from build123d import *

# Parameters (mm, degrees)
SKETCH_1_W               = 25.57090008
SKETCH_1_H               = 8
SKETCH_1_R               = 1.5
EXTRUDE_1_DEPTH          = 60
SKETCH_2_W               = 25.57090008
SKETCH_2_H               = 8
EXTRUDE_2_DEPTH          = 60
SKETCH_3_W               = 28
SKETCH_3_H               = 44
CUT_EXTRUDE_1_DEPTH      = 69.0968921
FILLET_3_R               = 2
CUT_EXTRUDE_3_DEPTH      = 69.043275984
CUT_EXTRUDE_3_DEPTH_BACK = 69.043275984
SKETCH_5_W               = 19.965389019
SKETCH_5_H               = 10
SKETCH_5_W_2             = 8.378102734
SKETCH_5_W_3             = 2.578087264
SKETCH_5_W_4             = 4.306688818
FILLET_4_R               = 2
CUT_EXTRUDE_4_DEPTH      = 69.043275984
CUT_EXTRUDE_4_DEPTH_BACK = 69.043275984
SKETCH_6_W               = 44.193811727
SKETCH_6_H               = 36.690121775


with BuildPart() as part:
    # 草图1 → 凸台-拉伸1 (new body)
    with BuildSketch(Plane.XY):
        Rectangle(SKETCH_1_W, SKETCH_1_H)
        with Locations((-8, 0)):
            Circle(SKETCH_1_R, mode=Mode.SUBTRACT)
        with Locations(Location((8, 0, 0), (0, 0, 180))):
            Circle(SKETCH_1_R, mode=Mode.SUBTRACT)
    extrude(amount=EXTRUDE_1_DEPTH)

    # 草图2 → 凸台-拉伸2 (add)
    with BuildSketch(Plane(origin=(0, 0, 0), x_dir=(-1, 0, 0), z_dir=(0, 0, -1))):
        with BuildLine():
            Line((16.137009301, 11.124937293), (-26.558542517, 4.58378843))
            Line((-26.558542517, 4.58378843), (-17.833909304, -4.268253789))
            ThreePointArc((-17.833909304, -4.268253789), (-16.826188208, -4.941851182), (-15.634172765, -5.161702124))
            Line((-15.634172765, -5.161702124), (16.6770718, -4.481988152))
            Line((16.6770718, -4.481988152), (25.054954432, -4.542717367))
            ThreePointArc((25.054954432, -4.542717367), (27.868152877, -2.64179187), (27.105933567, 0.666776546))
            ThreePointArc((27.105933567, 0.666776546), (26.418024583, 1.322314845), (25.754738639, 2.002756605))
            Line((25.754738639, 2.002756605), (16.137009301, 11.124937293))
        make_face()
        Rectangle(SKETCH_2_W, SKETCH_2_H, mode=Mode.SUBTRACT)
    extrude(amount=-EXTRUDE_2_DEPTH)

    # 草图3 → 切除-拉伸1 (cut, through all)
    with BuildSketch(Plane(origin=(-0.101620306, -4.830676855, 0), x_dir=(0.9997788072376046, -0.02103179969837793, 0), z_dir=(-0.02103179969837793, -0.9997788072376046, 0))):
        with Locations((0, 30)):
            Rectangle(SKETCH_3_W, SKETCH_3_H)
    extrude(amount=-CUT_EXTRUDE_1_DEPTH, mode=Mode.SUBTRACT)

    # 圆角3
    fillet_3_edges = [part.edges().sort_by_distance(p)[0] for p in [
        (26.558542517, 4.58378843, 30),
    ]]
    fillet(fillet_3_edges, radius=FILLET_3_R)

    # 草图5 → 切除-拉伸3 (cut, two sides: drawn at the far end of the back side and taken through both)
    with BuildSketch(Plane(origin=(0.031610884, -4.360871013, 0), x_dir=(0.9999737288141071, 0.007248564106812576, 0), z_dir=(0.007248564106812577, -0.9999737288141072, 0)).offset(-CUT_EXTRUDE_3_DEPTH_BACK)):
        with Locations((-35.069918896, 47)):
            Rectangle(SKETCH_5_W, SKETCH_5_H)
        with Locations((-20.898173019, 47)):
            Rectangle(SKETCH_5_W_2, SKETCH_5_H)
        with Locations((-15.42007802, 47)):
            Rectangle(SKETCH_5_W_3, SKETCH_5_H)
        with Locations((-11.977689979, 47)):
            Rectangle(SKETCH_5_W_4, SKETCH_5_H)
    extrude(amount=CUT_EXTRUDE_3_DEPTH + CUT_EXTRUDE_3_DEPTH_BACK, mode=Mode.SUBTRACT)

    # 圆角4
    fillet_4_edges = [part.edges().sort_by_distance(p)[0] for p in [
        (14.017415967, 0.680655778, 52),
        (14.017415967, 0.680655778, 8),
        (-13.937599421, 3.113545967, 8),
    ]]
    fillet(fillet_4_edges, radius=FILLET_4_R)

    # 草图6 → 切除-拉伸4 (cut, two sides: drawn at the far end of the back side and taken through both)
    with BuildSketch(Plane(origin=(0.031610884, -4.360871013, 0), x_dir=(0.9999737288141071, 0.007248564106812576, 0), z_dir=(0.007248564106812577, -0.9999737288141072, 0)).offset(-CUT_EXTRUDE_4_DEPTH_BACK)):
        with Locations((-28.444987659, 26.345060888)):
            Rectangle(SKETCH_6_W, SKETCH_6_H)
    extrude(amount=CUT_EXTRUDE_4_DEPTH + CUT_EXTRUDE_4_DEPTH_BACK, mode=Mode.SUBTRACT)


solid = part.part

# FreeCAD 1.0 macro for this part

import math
import FreeCAD as App
import Part
import Sketcher

V = App.Vector


def edges_at(feature, points):
    """Names of the edges that pass closest to the given points."""
    edges = feature.Shape.Edges
    near = lambda p: min(range(len(edges)), key=lambda i: edges[i].distToShape(Part.Vertex(*p))[0])
    return sorted({f"Edge{near(p) + 1}" for p in points})


def add_polygon(sketch, points):
    """Adds a closed chain of lines whose ends are joined by coincident constraints."""
    first, n = sketch.GeometryCount, len(points)
    for a, b in zip(points, points[1:] + points[:1]):
        sketch.addGeometry(Part.LineSegment(App.Vector(*a, 0), App.Vector(*b, 0)), False)
    for i in range(n):
        sketch.addConstraint(Sketcher.Constraint("Coincident", first + i, 2, first + (i + 1) % n, 1))

doc = App.newDocument("Part")
body = doc.addObject("PartDesign::Body", "Body")

# Sketch on XY plane
sketch1 = doc.addObject("Sketcher::SketchObject", "Sketch")
body.addObject(sketch1)
sketch1.AttachmentSupport = (doc.XY_Plane, [""])
sketch1.MapMode = "FlatFace"
add_polygon(sketch1, [(-12.8, 4), (-12.8, -4), (12.8, -4), (12.8, 4)])  # lines 0-3
sketch1.addGeometry(Part.Circle(V(-8, 0, 0), V(0, 0, 1), 1.5), False)  # 4
sketch1.addGeometry(Part.Circle(V(8, 0, 0), V(0, 0, 1), 1.5), False)  # 5
sketch1.addConstraint([
    Sketcher.Constraint("Vertical", 0),
    Sketcher.Constraint("Horizontal", 1),
    Sketcher.Constraint("Vertical", 2),
    Sketcher.Constraint("Horizontal", 3),
    Sketcher.Constraint("Equal", 4, 5),
    Sketcher.Constraint("Symmetric", 4, 3, 5, 3, -1, 1),
    Sketcher.Constraint("Symmetric", 0, 2, 2, 2, -1, 1),
    Sketcher.Constraint("PointOnObject", 4, 3, -1),
    Sketcher.Constraint("Diameter", 4, 3.0),
    Sketcher.Constraint("DistanceY", 0, 2, 0, 1, 8.0),
    Sketcher.Constraint("DistanceX", 4, 3, -1, 1, 8.0),
    Sketcher.Constraint("DistanceX", 1, 1, 1, 2, 25.5709),
])
pad1 = doc.addObject("PartDesign::Pad", "Pad")
body.addObject(pad1)
pad1.Profile = sketch1
pad1.Length = 60

# Sketch on XY plane
sketch2 = doc.addObject("Sketcher::SketchObject", "Sketch001")
body.addObject(sketch2)
sketch2.AttachmentSupport = (doc.XY_Plane, [""])
sketch2.MapMode = "FlatFace"
sketch2.addGeometry(Part.LineSegment(V(-16.1, 11.1, 0), V(26.6, 4.6, 0)), False)  # 0
sketch2.addGeometry(Part.LineSegment(V(26.6, 4.6, 0), V(17.8, -4.3, 0)), False)  # 1
sketch2.addGeometry(Part.ArcOfCircle(Part.Circle(V(15.7, -2.2, 0), V(0, 0, 1), 3), math.radians(-91), math.radians(-45)), False)  # 2
sketch2.addGeometry(Part.LineSegment(V(15.6, -5.2, 0), V(-16.7, -4.5, 0)), False)  # 3
sketch2.addGeometry(Part.LineSegment(V(-16.7, -4.5, 0), V(-25.1, -4.5, 0)), False)  # 4
sketch2.addGeometry(Part.ArcOfCircle(Part.Circle(V(-25.1, -1.5, 0), V(0, 0, 1), 3), math.radians(133), math.radians(270)), False)  # 5
sketch2.addGeometry(Part.ArcOfCircle(Part.Circle(V(-44.5, 19.7, 0), V(0, 0, 1), 25.8), math.radians(-47.44), math.radians(-43.21)), False)  # 6
sketch2.addGeometry(Part.LineSegment(V(-25.8, 2, 0), V(-16.1, 11.1, 0)), False)  # 7
add_polygon(sketch2, [(-12.8, -4), (12.8, -4), (12.8, 4), (-12.8, 4)])  # lines 8-11
sketch2.addConstraint([
    Sketcher.Constraint("Coincident", 0, 2, 1, 1),
    Sketcher.Constraint("Tangent", 1, 2, 2, 2),
    Sketcher.Constraint("Tangent", 2, 1, 3, 1),
    Sketcher.Constraint("Coincident", 3, 2, 4, 1),
    Sketcher.Constraint("Tangent", 4, 2, 5, 2),
    Sketcher.Constraint("Tangent", 5, 1, 6, 1),
    Sketcher.Constraint("Coincident", 6, 2, 7, 1),
    Sketcher.Constraint("Coincident", 7, 2, 0, 1),
    Sketcher.Constraint("Horizontal", 8),
    Sketcher.Constraint("Vertical", 9),
    Sketcher.Constraint("Horizontal", 10),
    Sketcher.Constraint("Vertical", 11),
    Sketcher.Constraint("Equal", 2, 5),
    Sketcher.Constraint("Symmetric", 8, 2, 10, 2, -1, 1),
    Sketcher.Constraint("Radius", 2, 3.0),
    Sketcher.Constraint("DistanceY", 9, 1, 9, 2, 8.0),
    Sketcher.Constraint("DistanceX", 8, 1, 8, 2, 25.5709),
    Sketcher.Constraint("Radius", 6, 25.783016),
    Sketcher.Constraint("DistanceX", 5, 3, -1, 1, 25.0767),
    Sketcher.Constraint("DistanceX", 6, 3, 4, 2, 19.490899),
    Sketcher.Constraint("DistanceX", 5, 1, 2, 3, 42.803202),
    Sketcher.Constraint("Distance", 7, 13.25575),
    Sketcher.Constraint("DistanceX", -1, 1, 2, 3, 15.697268),
    Sketcher.Constraint("DistanceY", -1, 1, 0, 2, 4.583788),
    Sketcher.Constraint("DistanceX", -1, 1, 1, 2, 17.833909),
    Sketcher.Constraint("DistanceX", 3, 2, -1, 1, 16.677072),
    Sketcher.Constraint("DistanceY", 3, 2, -1, 1, 4.481988),
    Sketcher.Constraint("DistanceX", 6, 2, -1, 1, 25.754739),
    Sketcher.Constraint("DistanceX", 7, 2, -1, 1, 16.137009),
    Sketcher.Constraint("DistanceY", 2, 3, 5, 3, 0.61957),
])
pad2 = doc.addObject("PartDesign::Pad", "Pad001")
body.addObject(pad2)
pad2.Profile = sketch2
pad2.Length = 60

# Sketch on an angled plane
sketch3 = doc.addObject("Sketcher::SketchObject", "Sketch002")
body.addObject(sketch3)
sketch3.Placement = App.Placement(V(-0.10162, -4.830677, 0), App.Rotation(V(0.999778807, -0.0210318, 0), V(0, 0, 1), V(-0.0210318, -0.999778807, 0), "ZXY"))
add_polygon(sketch3, [(-14, 52), (-14, 8), (14, 8), (14, 52)])  # lines 0-3
sketch3.addConstraint([
    Sketcher.Constraint("Vertical", 0),
    Sketcher.Constraint("Horizontal", 1),
    Sketcher.Constraint("Vertical", 2),
    Sketcher.Constraint("Horizontal", 3),
    Sketcher.Constraint("DistanceX", 1, 1, 1, 2, 28.0),
    Sketcher.Constraint("DistanceY", 0, 2, 0, 1, 44.0),
    Sketcher.Constraint("DistanceX", 0, 2, -1, 1, 14.0),
    Sketcher.Constraint("DistanceY", -1, 1, 0, 2, 8.0),
])
pocket1 = doc.addObject("PartDesign::Pocket", "Pocket")
body.addObject(pocket1)
pocket1.Profile = sketch3
pocket1.Type = "ThroughAll"
doc.recompute()

fillet = doc.addObject("PartDesign::Fillet", "Fillet")
body.addObject(fillet)
fillet.Base = (pocket1, edges_at(pocket1, [(26.559, 4.584, 30)]))
fillet.Radius = 2

# Sketch on an angled plane
sketch4 = doc.addObject("Sketcher::SketchObject", "Sketch003")
body.addObject(sketch4)
sketch4.Placement = App.Placement(V(0.031611, -4.360871, 0), App.Rotation(V(0.999973729, 0.007248564, 0), V(0, 0, 1), V(0.007248564, -0.999973729, 0), "ZXY"))
add_polygon(sketch4, [(-45, 52), (-45, 42), (-10, 42), (-10, 52)])  # lines 0-3
sketch4.addConstraint([
    Sketcher.Constraint("Vertical", 0),
    Sketcher.Constraint("Horizontal", 1),
    Sketcher.Constraint("Vertical", 2),
    Sketcher.Constraint("Horizontal", 3),
    Sketcher.Constraint("DistanceY", 0, 2, 0, 1, 10.0),
    Sketcher.Constraint("DistanceY", -1, 1, 0, 2, 42.0),
    Sketcher.Constraint("DistanceX", 1, 1, 1, 2, 35.228268),
    Sketcher.Constraint("DistanceX", 0, 2, -1, 1, 45.052613),
])
pocket2 = doc.addObject("PartDesign::Pocket", "Pocket001")
body.addObject(pocket2)
pocket2.Profile = sketch4
pocket2.Type = "ThroughAll"
pocket2.Midplane = True
doc.recompute()

fillet2 = doc.addObject("PartDesign::Fillet", "Fillet001")
body.addObject(fillet2)
fillet2.Base = (pocket2, edges_at(pocket2, [(14.017, 0.681, 52), (14.017, 0.681, 8), (-13.938, 3.114, 8)]))
fillet2.Radius = 2

# Sketch on an angled plane
sketch5 = doc.addObject("Sketcher::SketchObject", "Sketch004")
body.addObject(sketch5)
sketch5.Placement = App.Placement(V(0.031611, -4.360871, 0), App.Rotation(V(0.999973729, 0.007248564, 0), V(0, 0, 1), V(0.007248564, -0.999973729, 0), "ZXY"))
add_polygon(sketch5, [(-51, 45), (-51, 8), (-6, 8), (-6, 45)])  # lines 0-3
sketch5.addConstraint([
    Sketcher.Constraint("Vertical", 0),
    Sketcher.Constraint("Horizontal", 1),
    Sketcher.Constraint("Vertical", 2),
    Sketcher.Constraint("Horizontal", 3),
    Sketcher.Constraint("DistanceY", -1, 1, 0, 2, 8.0),
    Sketcher.Constraint("DistanceX", 1, 1, 1, 2, 44.193812),
    Sketcher.Constraint("DistanceY", 0, 2, 0, 1, 36.690122),
    Sketcher.Constraint("DistanceX", 1, 2, -1, 1, 6.348082),
])
pocket3 = doc.addObject("PartDesign::Pocket", "Pocket002")
body.addObject(pocket3)
pocket3.Profile = sketch5
pocket3.Type = "ThroughAll"
pocket3.Midplane = True

doc.recompute()
